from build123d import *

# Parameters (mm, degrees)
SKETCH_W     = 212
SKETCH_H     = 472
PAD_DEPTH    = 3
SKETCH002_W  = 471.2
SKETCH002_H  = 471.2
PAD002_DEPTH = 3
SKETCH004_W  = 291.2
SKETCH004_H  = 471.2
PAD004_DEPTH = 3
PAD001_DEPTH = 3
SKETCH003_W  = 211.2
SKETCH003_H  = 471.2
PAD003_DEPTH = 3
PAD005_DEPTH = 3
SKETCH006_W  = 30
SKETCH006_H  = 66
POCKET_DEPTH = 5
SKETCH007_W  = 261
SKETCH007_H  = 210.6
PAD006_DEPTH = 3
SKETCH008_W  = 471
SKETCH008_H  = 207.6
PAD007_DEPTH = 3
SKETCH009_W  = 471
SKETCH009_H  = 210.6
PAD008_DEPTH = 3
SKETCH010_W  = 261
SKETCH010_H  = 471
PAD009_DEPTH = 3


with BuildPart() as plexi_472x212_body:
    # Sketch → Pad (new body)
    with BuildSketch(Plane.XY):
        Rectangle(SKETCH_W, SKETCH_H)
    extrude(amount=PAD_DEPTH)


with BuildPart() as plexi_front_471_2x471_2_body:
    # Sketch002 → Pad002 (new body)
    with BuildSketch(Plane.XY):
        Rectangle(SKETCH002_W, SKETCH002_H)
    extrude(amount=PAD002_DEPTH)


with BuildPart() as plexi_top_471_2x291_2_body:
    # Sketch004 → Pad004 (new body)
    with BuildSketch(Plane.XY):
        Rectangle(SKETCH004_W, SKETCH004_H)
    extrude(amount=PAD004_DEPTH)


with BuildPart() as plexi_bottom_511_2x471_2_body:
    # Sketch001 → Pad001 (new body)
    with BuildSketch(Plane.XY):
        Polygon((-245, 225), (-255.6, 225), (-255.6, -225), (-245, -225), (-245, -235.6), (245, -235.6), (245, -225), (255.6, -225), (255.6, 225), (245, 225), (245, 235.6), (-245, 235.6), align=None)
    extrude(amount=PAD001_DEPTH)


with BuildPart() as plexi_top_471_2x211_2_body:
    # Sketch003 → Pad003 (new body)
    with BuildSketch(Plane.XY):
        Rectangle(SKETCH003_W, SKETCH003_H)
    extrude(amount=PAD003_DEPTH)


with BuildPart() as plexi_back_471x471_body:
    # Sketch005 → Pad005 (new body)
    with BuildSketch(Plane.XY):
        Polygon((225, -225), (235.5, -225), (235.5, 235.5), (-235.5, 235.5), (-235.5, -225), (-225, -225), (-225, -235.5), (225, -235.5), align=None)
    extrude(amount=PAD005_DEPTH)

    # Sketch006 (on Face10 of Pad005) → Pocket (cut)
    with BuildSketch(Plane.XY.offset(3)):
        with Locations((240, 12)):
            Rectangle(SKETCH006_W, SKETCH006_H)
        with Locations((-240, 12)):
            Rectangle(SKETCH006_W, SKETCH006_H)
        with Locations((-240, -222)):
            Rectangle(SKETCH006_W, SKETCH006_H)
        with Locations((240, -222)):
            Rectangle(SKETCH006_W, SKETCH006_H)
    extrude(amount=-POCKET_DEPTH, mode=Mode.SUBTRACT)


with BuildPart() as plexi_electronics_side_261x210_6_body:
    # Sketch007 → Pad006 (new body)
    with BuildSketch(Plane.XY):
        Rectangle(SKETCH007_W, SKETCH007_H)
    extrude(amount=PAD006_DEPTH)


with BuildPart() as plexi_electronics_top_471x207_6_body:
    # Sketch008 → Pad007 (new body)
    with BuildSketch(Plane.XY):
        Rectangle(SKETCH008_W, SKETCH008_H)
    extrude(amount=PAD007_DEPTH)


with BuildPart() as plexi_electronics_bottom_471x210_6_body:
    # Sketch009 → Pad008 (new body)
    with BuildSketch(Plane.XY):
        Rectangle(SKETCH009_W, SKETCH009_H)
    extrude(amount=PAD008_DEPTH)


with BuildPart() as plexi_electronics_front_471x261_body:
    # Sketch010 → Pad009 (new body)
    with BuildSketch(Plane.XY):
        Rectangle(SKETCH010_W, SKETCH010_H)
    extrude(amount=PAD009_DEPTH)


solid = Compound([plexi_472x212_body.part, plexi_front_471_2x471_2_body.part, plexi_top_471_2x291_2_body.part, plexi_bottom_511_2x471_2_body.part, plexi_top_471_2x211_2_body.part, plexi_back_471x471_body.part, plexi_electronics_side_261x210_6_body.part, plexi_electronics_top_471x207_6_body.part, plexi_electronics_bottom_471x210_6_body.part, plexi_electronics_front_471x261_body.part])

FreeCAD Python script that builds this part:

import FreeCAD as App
import Part
import Sketcher

doc = App.newDocument("Part")
body = doc.addObject("PartDesign::Body", "Body")

# Sketch on XY plane
sketch1 = body.newObject("Sketcher::SketchObject", "Sketch")
sketch1.AttachmentSupport = (doc.getObject("XY_Plane"), [""])
sketch1.MapMode = "FlatFace"
sketch1.addGeometry([
    Part.LineSegment(App.Vector(-106, 236, 0), App.Vector(-106, -236, 0)),
    Part.LineSegment(App.Vector(-106, -236, 0), App.Vector(106, -236, 0)),
    Part.LineSegment(App.Vector(106, -236, 0), App.Vector(106, 236, 0)),
    Part.LineSegment(App.Vector(106, 236, 0), App.Vector(-106, 236, 0)),
], False)
sketch1.addConstraint([
    Sketcher.Constraint("Coincident", 0, 2, 1, 1),
    Sketcher.Constraint("Coincident", 1, 2, 2, 1),
    Sketcher.Constraint("Coincident", 2, 2, 3, 1),
    Sketcher.Constraint("Coincident", 3, 2, 0, 1),
    Sketcher.Constraint("Vertical", 0),
    Sketcher.Constraint("Horizontal", 1),
    Sketcher.Constraint("Vertical", 2),
    Sketcher.Constraint("Horizontal", 3),
    Sketcher.Constraint("Symmetric", 0, 2, 2, 2, -1, 1),
    Sketcher.Constraint("DistanceX", 1, 1, 1, 2, 212.0),
    Sketcher.Constraint("DistanceY", 0, 2, 0, 1, 472.0),
])
pad1 = body.newObject("PartDesign::Pad", "Pad")
pad1.Profile = sketch1
pad1.Length = 3
body2 = doc.addObject("PartDesign::Body", "Body001")

# Sketch on XY plane
sketch2 = body2.newObject("Sketcher::SketchObject", "Sketch001")
sketch2.AttachmentSupport = (doc.getObject("XY_Plane001"), [""])
sketch2.MapMode = "FlatFace"
sketch2.addGeometry([
    Part.LineSegment(App.Vector(-236, 236, 0), App.Vector(-236, -236, 0)),
    Part.LineSegment(App.Vector(-236, -236, 0), App.Vector(236, -236, 0)),
    Part.LineSegment(App.Vector(236, -236, 0), App.Vector(236, 236, 0)),
    Part.LineSegment(App.Vector(236, 236, 0), App.Vector(-236, 236, 0)),
], False)
sketch2.addConstraint([
    Sketcher.Constraint("Coincident", 0, 2, 1, 1),
    Sketcher.Constraint("Coincident", 1, 2, 2, 1),
    Sketcher.Constraint("Coincident", 2, 2, 3, 1),
    Sketcher.Constraint("Coincident", 3, 2, 0, 1),
    Sketcher.Constraint("Vertical", 0),
    Sketcher.Constraint("Horizontal", 1),
    Sketcher.Constraint("Vertical", 2),
    Sketcher.Constraint("Horizontal", 3),
    Sketcher.Constraint("Symmetric", 0, 2, 2, 2, -1, 1),
    Sketcher.Constraint("Equal", 3, 0),
    Sketcher.Constraint("DistanceX", 1, 1, 1, 2, 471.2),
])
pad2 = body2.newObject("PartDesign::Pad", "Pad001")
pad2.Profile = sketch2
pad2.Length = 3
body3 = doc.addObject("PartDesign::Body", "Body002")

# Sketch on XY plane
sketch3 = body3.newObject("Sketcher::SketchObject", "Sketch002")
sketch3.AttachmentSupport = (doc.getObject("XY_Plane002"), [""])
sketch3.MapMode = "FlatFace"
sketch3.addGeometry([
    Part.LineSegment(App.Vector(-146, 236, 0), App.Vector(-146, -236, 0)),
    Part.LineSegment(App.Vector(-146, -236, 0), App.Vector(146, -236, 0)),
    Part.LineSegment(App.Vector(146, -236, 0), App.Vector(146, 236, 0)),
    Part.LineSegment(App.Vector(146, 236, 0), App.Vector(-146, 236, 0)),
], False)
sketch3.addConstraint([
    Sketcher.Constraint("Coincident", 0, 2, 1, 1),
    Sketcher.Constraint("Coincident", 1, 2, 2, 1),
    Sketcher.Constraint("Coincident", 2, 2, 3, 1),
    Sketcher.Constraint("Coincident", 3, 2, 0, 1),
    Sketcher.Constraint("Vertical", 0),
    Sketcher.Constraint("Horizontal", 1),
    Sketcher.Constraint("Vertical", 2),
    Sketcher.Constraint("Horizontal", 3),
    Sketcher.Constraint("Symmetric", 0, 2, 2, 2, -1, 1),
    Sketcher.Constraint("DistanceX", 1, 1, 1, 2, 291.2),
    Sketcher.Constraint("DistanceY", 0, 2, 0, 1, 471.2),
])
pad3 = body3.newObject("PartDesign::Pad", "Pad002")
pad3.Profile = sketch3
pad3.Length = 3
body4 = doc.addObject("PartDesign::Body", "Body003")

# Sketch on XY plane
sketch4 = body4.newObject("Sketcher::SketchObject", "Sketch003")
sketch4.AttachmentSupport = (doc.getObject("XY_Plane003"), [""])
sketch4.MapMode = "FlatFace"
sketch4.addGeometry([
    Part.LineSegment(App.Vector(-245, 225, 0), App.Vector(-256, 225, 0)),  # 0
    Part.LineSegment(App.Vector(-256, 225, 0), App.Vector(-256, -225, 0)),  # 1
    Part.LineSegment(App.Vector(-256, -225, 0), App.Vector(-245, -225, 0)),  # 2
    Part.LineSegment(App.Vector(-245, -225, 0), App.Vector(-245, -236, 0)),  # 3
    Part.LineSegment(App.Vector(-245, -236, 0), App.Vector(245, -236, 0)),  # 4
    Part.LineSegment(App.Vector(245, -236, 0), App.Vector(245, -225, 0)),  # 5
    Part.LineSegment(App.Vector(245, -225, 0), App.Vector(256, -225, 0)),  # 6
    Part.LineSegment(App.Vector(256, -225, 0), App.Vector(256, 225, 0)),  # 7
    Part.LineSegment(App.Vector(256, 225, 0), App.Vector(245, 225, 0)),  # 8
    Part.LineSegment(App.Vector(245, 225, 0), App.Vector(245, 236, 0)),  # 9
    Part.LineSegment(App.Vector(245, 236, 0), App.Vector(-245, 236, 0)),  # 10
    Part.LineSegment(App.Vector(-245, 236, 0), App.Vector(-245, 225, 0)),  # 11
], False)
sketch4.addConstraint([
    Sketcher.Constraint("Coincident", 0, 2, 1, 1),
    Sketcher.Constraint("Coincident", 1, 2, 2, 1),
    Sketcher.Constraint("Coincident", 2, 2, 3, 1),
    Sketcher.Constraint("Coincident", 3, 2, 4, 1),
    Sketcher.Constraint("Coincident", 4, 2, 5, 1),
    Sketcher.Constraint("Coincident", 5, 2, 6, 1),
    Sketcher.Constraint("Coincident", 6, 2, 7, 1),
    Sketcher.Constraint("Coincident", 7, 2, 8, 1),
    Sketcher.Constraint("Coincident", 8, 2, 9, 1),
    Sketcher.Constraint("Coincident", 9, 2, 10, 1),
    Sketcher.Constraint("Coincident", 10, 2, 11, 1),
    Sketcher.Constraint("Coincident", 11, 2, 0, 1),
    Sketcher.Constraint("Horizontal", 0),
    Sketcher.Constraint("Vertical", 1),
    Sketcher.Constraint("Horizontal", 2),
    Sketcher.Constraint("Vertical", 3),
    Sketcher.Constraint("Horizontal", 4),
    Sketcher.Constraint("Vertical", 5),
    Sketcher.Constraint("Horizontal", 6),
    Sketcher.Constraint("Vertical", 7),
    Sketcher.Constraint("Horizontal", 8),
    Sketcher.Constraint("Vertical", 9),
    Sketcher.Constraint("Horizontal", 10),
    Sketcher.Constraint("Vertical", 11),
    Sketcher.Constraint("Symmetric", 0, 2, 6, 2, -1, 1),
    Sketcher.Constraint("Symmetric", 2, 2, 8, 2, -1, 1),
    Sketcher.Constraint("Symmetric", 4, 2, 10, 2, -1, 1),
    Sketcher.Constraint("Symmetric", 2, 2, 5, 2, -2),
    Sketcher.Constraint("Equal", 8, 3),
    Sketcher.Constraint("DistanceX", 4, 1, 4, 2, 490.0),
    Sketcher.Constraint("DistanceY", 1, 2, 1, 1, 450.0),
    Sketcher.Constraint("DistanceX", 0, 2, 0, 1, 10.6),
])
pad4 = body4.newObject("PartDesign::Pad", "Pad003")
pad4.Profile = sketch4
pad4.Length = 3
body5 = doc.addObject("PartDesign::Body", "Body004")

# Sketch on XY plane
sketch5 = body5.newObject("Sketcher::SketchObject", "Sketch004")
sketch5.AttachmentSupport = (doc.getObject("XY_Plane004"), [""])
sketch5.MapMode = "FlatFace"
sketch5.addGeometry([
    Part.LineSegment(App.Vector(-106, 236, 0), App.Vector(-106, -236, 0)),
    Part.LineSegment(App.Vector(-106, -236, 0), App.Vector(106, -236, 0)),
    Part.LineSegment(App.Vector(106, -236, 0), App.Vector(106, 236, 0)),
    Part.LineSegment(App.Vector(106, 236, 0), App.Vector(-106, 236, 0)),
], False)
sketch5.addConstraint([
    Sketcher.Constraint("Coincident", 0, 2, 1, 1),
    Sketcher.Constraint("Coincident", 1, 2, 2, 1),
    Sketcher.Constraint("Coincident", 2, 2, 3, 1),
    Sketcher.Constraint("Coincident", 3, 2, 0, 1),
    Sketcher.Constraint("Vertical", 0),
    Sketcher.Constraint("Horizontal", 1),
    Sketcher.Constraint("Vertical", 2),
    Sketcher.Constraint("Horizontal", 3),
    Sketcher.Constraint("Symmetric", 0, 2, 2, 2, -1, 1),
    Sketcher.Constraint("DistanceX", 1, 1, 1, 2, 211.2),
    Sketcher.Constraint("DistanceY", 0, 2, 0, 1, 471.2),
])
pad5 = body5.newObject("PartDesign::Pad", "Pad004")
pad5.Profile = sketch5
pad5.Length = 3
body6 = doc.addObject("PartDesign::Body", "Body005")

# Sketch on XY plane
sketch6 = body6.newObject("Sketcher::SketchObject", "Sketch005")
sketch6.AttachmentSupport = (doc.getObject("XY_Plane005"), [""])
sketch6.MapMode = "FlatFace"
sketch6.addGeometry([
    Part.LineSegment(App.Vector(225, -225, 0), App.Vector(236, -225, 0)),  # 0
    Part.LineSegment(App.Vector(236, -225, 0), App.Vector(236, 236, 0)),  # 1
    Part.LineSegment(App.Vector(236, 236, 0), App.Vector(-236, 236, 0)),  # 2
    Part.LineSegment(App.Vector(-236, 236, 0), App.Vector(-236, -225, 0)),  # 3
    Part.LineSegment(App.Vector(-236, -225, 0), App.Vector(-225, -225, 0)),  # 4
    Part.LineSegment(App.Vector(-225, -225, 0), App.Vector(-225, -236, 0)),  # 5
    Part.LineSegment(App.Vector(-225, -236, 0), App.Vector(225, -236, 0)),  # 6
    Part.LineSegment(App.Vector(225, -236, 0), App.Vector(225, -225, 0)),  # 7
], False)
sketch6.addConstraint([
    Sketcher.Constraint("Coincident", 0, 2, 1, 1),
    Sketcher.Constraint("Coincident", 1, 2, 2, 1),
    Sketcher.Constraint("Coincident", 2, 2, 3, 1),
    Sketcher.Constraint("Coincident", 3, 2, 4, 1),
    Sketcher.Constraint("Coincident", 4, 2, 5, 1),
    Sketcher.Constraint("Coincident", 5, 2, 6, 1),
    Sketcher.Constraint("Coincident", 6, 2, 7, 1),
    Sketcher.Constraint("Coincident", 7, 2, 0, 1),
    Sketcher.Constraint("Horizontal", 0),
    Sketcher.Constraint("Vertical", 1),
    Sketcher.Constraint("Horizontal", 2),
    Sketcher.Constraint("Vertical", 3),
    Sketcher.Constraint("Horizontal", 4),
    Sketcher.Constraint("Vertical", 5),
    Sketcher.Constraint("Horizontal", 6),
    Sketcher.Constraint("Vertical", 7),
    Sketcher.Constraint("Symmetric", 0, 2, 3, 2, -2),
    Sketcher.Constraint("Equal", 0, 4),
    Sketcher.Constraint("Equal", 4, 5),
    Sketcher.Constraint("DistanceX", 2, 2, 2, 1, 471.0),
    Sketcher.Constraint("DistanceX", 6, 1, 6, 2, 450.0),
    Sketcher.Constraint("DistanceY", 1, 1, 1, 2, 460.5),
    Sketcher.Constraint("DistanceY", 0, 2, -1, 1, 225.0),
])
pad6 = body6.newObject("PartDesign::Pad", "Pad005")
pad6.Profile = sketch6
pad6.Length = 3

# Sketch on XY plane
sketch7 = body6.newObject("Sketcher::SketchObject", "Sketch006")
sketch7.AttachmentSupport = (doc.getObject("XY_Plane005"), [""])
sketch7.MapMode = "FlatFace"
sketch7.AttachmentOffset = App.Placement(App.Vector(0, 0, 3), App.Rotation())
sketch7.addGeometry([
    Part.LineSegment(App.Vector(225, 45, 0), App.Vector(225, -21, 0)),  # 0
    Part.LineSegment(App.Vector(225, -21, 0), App.Vector(255, -21, 0)),  # 1
    Part.LineSegment(App.Vector(255, -21, 0), App.Vector(255, 45, 0)),  # 2
    Part.LineSegment(App.Vector(255, 45, 0), App.Vector(225, 45, 0)),  # 3
    Part.LineSegment(App.Vector(-255, 45, 0), App.Vector(-255, -21, 0)),  # 4
    Part.LineSegment(App.Vector(-255, -21, 0), App.Vector(-225, -21, 0)),  # 5
    Part.LineSegment(App.Vector(-225, -21, 0), App.Vector(-225, 45, 0)),  # 6
    Part.LineSegment(App.Vector(-225, 45, 0), App.Vector(-255, 45, 0)),  # 7
    Part.LineSegment(App.Vector(-255, -189, 0), App.Vector(-255, -255, 0)),  # 8
    Part.LineSegment(App.Vector(-255, -255, 0), App.Vector(-225, -255, 0)),  # 9
    Part.LineSegment(App.Vector(-225, -255, 0), App.Vector(-225, -189, 0)),  # 10
    Part.LineSegment(App.Vector(-225, -189, 0), App.Vector(-255, -189, 0)),  # 11
    Part.LineSegment(App.Vector(225, -189, 0), App.Vector(225, -255, 0)),  # 12
    Part.LineSegment(App.Vector(225, -255, 0), App.Vector(255, -255, 0)),  # 13
    Part.LineSegment(App.Vector(255, -255, 0), App.Vector(255, -189, 0)),  # 14
    Part.LineSegment(App.Vector(255, -189, 0), App.Vector(225, -189, 0)),  # 15
], False)
sketch7.addConstraint([
    Sketcher.Constraint("Coincident", 0, 2, 1, 1),
    Sketcher.Constraint("Coincident", 1, 2, 2, 1),
    Sketcher.Constraint("Coincident", 2, 2, 3, 1),
    Sketcher.Constraint("Coincident", 3, 2, 0, 1),
    Sketcher.Constraint("Coincident", 4, 2, 5, 1),
    Sketcher.Constraint("Coincident", 5, 2, 6, 1),
    Sketcher.Constraint("Coincident", 6, 2, 7, 1),
    Sketcher.Constraint("Coincident", 7, 2, 4, 1),
    Sketcher.Constraint("Coincident", 8, 2, 9, 1),
    Sketcher.Constraint("Coincident", 9, 2, 10, 1),
    Sketcher.Constraint("Coincident", 10, 2, 11, 1),
    Sketcher.Constraint("Coincident", 11, 2, 8, 1),
    Sketcher.Constraint("Coincident", 12, 2, 13, 1),
    Sketcher.Constraint("Coincident", 13, 2, 14, 1),
    Sketcher.Constraint("Coincident", 14, 2, 15, 1),
    Sketcher.Constraint("Coincident", 15, 2, 12, 1),
    Sketcher.Constraint("Vertical", 0),
    Sketcher.Constraint("Horizontal", 1),
    Sketcher.Constraint("Vertical", 2),
    Sketcher.Constraint("Horizontal", 3),
    Sketcher.Constraint("Vertical", 4),
    Sketcher.Constraint("Horizontal", 5),
    Sketcher.Constraint("Vertical", 6),
    Sketcher.Constraint("Horizontal", 7),
    Sketcher.Constraint("Vertical", 8),
    Sketcher.Constraint("Horizontal", 9),
    Sketcher.Constraint("Vertical", 10),
    Sketcher.Constraint("Horizontal", 11),
    Sketcher.Constraint("Vertical", 12),
    Sketcher.Constraint("Horizontal", 13),
    Sketcher.Constraint("Vertical", 14),
    Sketcher.Constraint("Horizontal", 15),
    Sketcher.Constraint("Symmetric", 1, 2, 4, 2, -2),
    Sketcher.Constraint("Symmetric", 3, 2, 6, 2, -2),
    Sketcher.Constraint("Symmetric", 9, 2, 12, 2, -2),
    Sketcher.Constraint("Symmetric", 11, 2, 14, 2, -2),
    Sketcher.Constraint("Vertical", 7, 2, 8, 2),
    Sketcher.Constraint("Vertical", 6, 2, 9, 2),
    Sketcher.Constraint("Equal", 6, 8),
    Sketcher.Constraint("DistanceX", 1, 1, 1, 2, 30.0),
    Sketcher.Constraint("DistanceY", 0, 2, 0, 1, 66.0),
    Sketcher.Constraint("DistanceX", -1, 1, 0, 2, 225.0),
    Sketcher.Constraint("DistanceY", 0, 2, -1, 1, 21.0),
    Sketcher.Constraint("DistanceY", 8, 2, -1, 1, 255.0),
])
pocket1 = body6.newObject("PartDesign::Pocket", "Pocket")
pocket1.Profile = sketch7
pocket1.Length = 5
body7 = doc.addObject("PartDesign::Body", "Body006")

# Sketch on XY plane
sketch8 = body7.newObject("Sketcher::SketchObject", "Sketch007")
sketch8.AttachmentSupport = (doc.getObject("XY_Plane006"), [""])
sketch8.MapMode = "FlatFace"
sketch8.addGeometry([
    Part.LineSegment(App.Vector(-130, 105, 0), App.Vector(-130, -105, 0)),
    Part.LineSegment(App.Vector(-130, -105, 0), App.Vector(130, -105, 0)),
    Part.LineSegment(App.Vector(130, -105, 0), App.Vector(130, 105, 0)),
    Part.LineSegment(App.Vector(130, 105, 0), App.Vector(-130, 105, 0)),
], False)
sketch8.addConstraint([
    Sketcher.Constraint("Coincident", 0, 2, 1, 1),
    Sketcher.Constraint("Coincident", 1, 2, 2, 1),
    Sketcher.Constraint("Coincident", 2, 2, 3, 1),
    Sketcher.Constraint("Coincident", 3, 2, 0, 1),
    Sketcher.Constraint("Vertical", 0),
    Sketcher.Constraint("Horizontal", 1),
    Sketcher.Constraint("Vertical", 2),
    Sketcher.Constraint("Horizontal", 3),
    Sketcher.Constraint("Symmetric", 0, 2, 2, 2, -1, 1),
    Sketcher.Constraint("DistanceX", 1, 1, 1, 2, 261.0),
    Sketcher.Constraint("DistanceY", 0, 2, 0, 1, 210.6),
])
pad7 = body7.newObject("PartDesign::Pad", "Pad006")
pad7.Profile = sketch8
pad7.Length = 3
body8 = doc.addObject("PartDesign::Body", "Body007")

# Sketch on XY plane
sketch9 = body8.newObject("Sketcher::SketchObject", "Sketch008")
sketch9.AttachmentSupport = (doc.getObject("XY_Plane007"), [""])
sketch9.MapMode = "FlatFace"
sketch9.addGeometry([
    Part.LineSegment(App.Vector(-236, 104, 0), App.Vector(-236, -104, 0)),
    Part.LineSegment(App.Vector(-236, -104, 0), App.Vector(236, -104, 0)),
    Part.LineSegment(App.Vector(236, -104, 0), App.Vector(236, 104, 0)),
    Part.LineSegment(App.Vector(236, 104, 0), App.Vector(-236, 104, 0)),
], False)
sketch9.addConstraint([
    Sketcher.Constraint("Coincident", 0, 2, 1, 1),
    Sketcher.Constraint("Coincident", 1, 2, 2, 1),
    Sketcher.Constraint("Coincident", 2, 2, 3, 1),
    Sketcher.Constraint("Coincident", 3, 2, 0, 1),
    Sketcher.Constraint("Vertical", 0),
    Sketcher.Constraint("Horizontal", 1),
    Sketcher.Constraint("Vertical", 2),
    Sketcher.Constraint("Horizontal", 3),
    Sketcher.Constraint("Symmetric", 0, 2, 2, 2, -1, 1),
    Sketcher.Constraint("DistanceX", 1, 1, 1, 2, 471.0),
    Sketcher.Constraint("DistanceY", 0, 2, 0, 1, 207.6),
])
pad8 = body8.newObject("PartDesign::Pad", "Pad007")
pad8.Profile = sketch9
pad8.Length = 3
body9 = doc.addObject("PartDesign::Body", "Body008")

# Sketch on XY plane
sketch10 = body9.newObject("Sketcher::SketchObject", "Sketch009")
sketch10.AttachmentSupport = (doc.getObject("XY_Plane008"), [""])
sketch10.MapMode = "FlatFace"
sketch10.addGeometry([
    Part.LineSegment(App.Vector(-236, 105, 0), App.Vector(-236, -105, 0)),
    Part.LineSegment(App.Vector(-236, -105, 0), App.Vector(236, -105, 0)),
    Part.LineSegment(App.Vector(236, -105, 0), App.Vector(236, 105, 0)),
    Part.LineSegment(App.Vector(236, 105, 0), App.Vector(-236, 105, 0)),
], False)
sketch10.addConstraint([
    Sketcher.Constraint("Coincident", 0, 2, 1, 1),
    Sketcher.Constraint("Coincident", 1, 2, 2, 1),
    Sketcher.Constraint("Coincident", 2, 2, 3, 1),
    Sketcher.Constraint("Coincident", 3, 2, 0, 1),
    Sketcher.Constraint("Vertical", 0),
    Sketcher.Constraint("Horizontal", 1),
    Sketcher.Constraint("Vertical", 2),
    Sketcher.Constraint("Horizontal", 3),
    Sketcher.Constraint("Symmetric", 0, 2, 2, 2, -1, 1),
    Sketcher.Constraint("DistanceX", 1, 1, 1, 2, 471.0),
    Sketcher.Constraint("DistanceY", 0, 2, 0, 1, 210.6),
])
pad9 = body9.newObject("PartDesign::Pad", "Pad008")
pad9.Profile = sketch10
pad9.Length = 3
body10 = doc.addObject("PartDesign::Body", "Body009")

# Sketch on XY plane
sketch11 = body10.newObject("Sketcher::SketchObject", "Sketch010")
sketch11.AttachmentSupport = (doc.getObject("XY_Plane009"), [""])
sketch11.MapMode = "FlatFace"
sketch11.addGeometry([
    Part.LineSegment(App.Vector(-130, 236, 0), App.Vector(-130, -236, 0)),
    Part.LineSegment(App.Vector(-130, -236, 0), App.Vector(130, -236, 0)),
    Part.LineSegment(App.Vector(130, -236, 0), App.Vector(130, 236, 0)),
    Part.LineSegment(App.Vector(130, 236, 0), App.Vector(-130, 236, 0)),
], False)
sketch11.addConstraint([
    Sketcher.Constraint("Coincident", 0, 2, 1, 1),
    Sketcher.Constraint("Coincident", 1, 2, 2, 1),
    Sketcher.Constraint("Coincident", 2, 2, 3, 1),
    Sketcher.Constraint("Coincident", 3, 2, 0, 1),
    Sketcher.Constraint("Vertical", 0),
    Sketcher.Constraint("Horizontal", 1),
    Sketcher.Constraint("Vertical", 2),
    Sketcher.Constraint("Horizontal", 3),
    Sketcher.Constraint("Symmetric", 0, 2, 2, 2, -1, 1),
    Sketcher.Constraint("DistanceX", 1, 1, 1, 2, 261.0),
    Sketcher.Constraint("DistanceY", 0, 2, 0, 1, 471.0),
])
pad10 = body10.newObject("PartDesign::Pad", "Pad009")
pad10.Profile = sketch11
pad10.Length = 3

doc.recompute()
